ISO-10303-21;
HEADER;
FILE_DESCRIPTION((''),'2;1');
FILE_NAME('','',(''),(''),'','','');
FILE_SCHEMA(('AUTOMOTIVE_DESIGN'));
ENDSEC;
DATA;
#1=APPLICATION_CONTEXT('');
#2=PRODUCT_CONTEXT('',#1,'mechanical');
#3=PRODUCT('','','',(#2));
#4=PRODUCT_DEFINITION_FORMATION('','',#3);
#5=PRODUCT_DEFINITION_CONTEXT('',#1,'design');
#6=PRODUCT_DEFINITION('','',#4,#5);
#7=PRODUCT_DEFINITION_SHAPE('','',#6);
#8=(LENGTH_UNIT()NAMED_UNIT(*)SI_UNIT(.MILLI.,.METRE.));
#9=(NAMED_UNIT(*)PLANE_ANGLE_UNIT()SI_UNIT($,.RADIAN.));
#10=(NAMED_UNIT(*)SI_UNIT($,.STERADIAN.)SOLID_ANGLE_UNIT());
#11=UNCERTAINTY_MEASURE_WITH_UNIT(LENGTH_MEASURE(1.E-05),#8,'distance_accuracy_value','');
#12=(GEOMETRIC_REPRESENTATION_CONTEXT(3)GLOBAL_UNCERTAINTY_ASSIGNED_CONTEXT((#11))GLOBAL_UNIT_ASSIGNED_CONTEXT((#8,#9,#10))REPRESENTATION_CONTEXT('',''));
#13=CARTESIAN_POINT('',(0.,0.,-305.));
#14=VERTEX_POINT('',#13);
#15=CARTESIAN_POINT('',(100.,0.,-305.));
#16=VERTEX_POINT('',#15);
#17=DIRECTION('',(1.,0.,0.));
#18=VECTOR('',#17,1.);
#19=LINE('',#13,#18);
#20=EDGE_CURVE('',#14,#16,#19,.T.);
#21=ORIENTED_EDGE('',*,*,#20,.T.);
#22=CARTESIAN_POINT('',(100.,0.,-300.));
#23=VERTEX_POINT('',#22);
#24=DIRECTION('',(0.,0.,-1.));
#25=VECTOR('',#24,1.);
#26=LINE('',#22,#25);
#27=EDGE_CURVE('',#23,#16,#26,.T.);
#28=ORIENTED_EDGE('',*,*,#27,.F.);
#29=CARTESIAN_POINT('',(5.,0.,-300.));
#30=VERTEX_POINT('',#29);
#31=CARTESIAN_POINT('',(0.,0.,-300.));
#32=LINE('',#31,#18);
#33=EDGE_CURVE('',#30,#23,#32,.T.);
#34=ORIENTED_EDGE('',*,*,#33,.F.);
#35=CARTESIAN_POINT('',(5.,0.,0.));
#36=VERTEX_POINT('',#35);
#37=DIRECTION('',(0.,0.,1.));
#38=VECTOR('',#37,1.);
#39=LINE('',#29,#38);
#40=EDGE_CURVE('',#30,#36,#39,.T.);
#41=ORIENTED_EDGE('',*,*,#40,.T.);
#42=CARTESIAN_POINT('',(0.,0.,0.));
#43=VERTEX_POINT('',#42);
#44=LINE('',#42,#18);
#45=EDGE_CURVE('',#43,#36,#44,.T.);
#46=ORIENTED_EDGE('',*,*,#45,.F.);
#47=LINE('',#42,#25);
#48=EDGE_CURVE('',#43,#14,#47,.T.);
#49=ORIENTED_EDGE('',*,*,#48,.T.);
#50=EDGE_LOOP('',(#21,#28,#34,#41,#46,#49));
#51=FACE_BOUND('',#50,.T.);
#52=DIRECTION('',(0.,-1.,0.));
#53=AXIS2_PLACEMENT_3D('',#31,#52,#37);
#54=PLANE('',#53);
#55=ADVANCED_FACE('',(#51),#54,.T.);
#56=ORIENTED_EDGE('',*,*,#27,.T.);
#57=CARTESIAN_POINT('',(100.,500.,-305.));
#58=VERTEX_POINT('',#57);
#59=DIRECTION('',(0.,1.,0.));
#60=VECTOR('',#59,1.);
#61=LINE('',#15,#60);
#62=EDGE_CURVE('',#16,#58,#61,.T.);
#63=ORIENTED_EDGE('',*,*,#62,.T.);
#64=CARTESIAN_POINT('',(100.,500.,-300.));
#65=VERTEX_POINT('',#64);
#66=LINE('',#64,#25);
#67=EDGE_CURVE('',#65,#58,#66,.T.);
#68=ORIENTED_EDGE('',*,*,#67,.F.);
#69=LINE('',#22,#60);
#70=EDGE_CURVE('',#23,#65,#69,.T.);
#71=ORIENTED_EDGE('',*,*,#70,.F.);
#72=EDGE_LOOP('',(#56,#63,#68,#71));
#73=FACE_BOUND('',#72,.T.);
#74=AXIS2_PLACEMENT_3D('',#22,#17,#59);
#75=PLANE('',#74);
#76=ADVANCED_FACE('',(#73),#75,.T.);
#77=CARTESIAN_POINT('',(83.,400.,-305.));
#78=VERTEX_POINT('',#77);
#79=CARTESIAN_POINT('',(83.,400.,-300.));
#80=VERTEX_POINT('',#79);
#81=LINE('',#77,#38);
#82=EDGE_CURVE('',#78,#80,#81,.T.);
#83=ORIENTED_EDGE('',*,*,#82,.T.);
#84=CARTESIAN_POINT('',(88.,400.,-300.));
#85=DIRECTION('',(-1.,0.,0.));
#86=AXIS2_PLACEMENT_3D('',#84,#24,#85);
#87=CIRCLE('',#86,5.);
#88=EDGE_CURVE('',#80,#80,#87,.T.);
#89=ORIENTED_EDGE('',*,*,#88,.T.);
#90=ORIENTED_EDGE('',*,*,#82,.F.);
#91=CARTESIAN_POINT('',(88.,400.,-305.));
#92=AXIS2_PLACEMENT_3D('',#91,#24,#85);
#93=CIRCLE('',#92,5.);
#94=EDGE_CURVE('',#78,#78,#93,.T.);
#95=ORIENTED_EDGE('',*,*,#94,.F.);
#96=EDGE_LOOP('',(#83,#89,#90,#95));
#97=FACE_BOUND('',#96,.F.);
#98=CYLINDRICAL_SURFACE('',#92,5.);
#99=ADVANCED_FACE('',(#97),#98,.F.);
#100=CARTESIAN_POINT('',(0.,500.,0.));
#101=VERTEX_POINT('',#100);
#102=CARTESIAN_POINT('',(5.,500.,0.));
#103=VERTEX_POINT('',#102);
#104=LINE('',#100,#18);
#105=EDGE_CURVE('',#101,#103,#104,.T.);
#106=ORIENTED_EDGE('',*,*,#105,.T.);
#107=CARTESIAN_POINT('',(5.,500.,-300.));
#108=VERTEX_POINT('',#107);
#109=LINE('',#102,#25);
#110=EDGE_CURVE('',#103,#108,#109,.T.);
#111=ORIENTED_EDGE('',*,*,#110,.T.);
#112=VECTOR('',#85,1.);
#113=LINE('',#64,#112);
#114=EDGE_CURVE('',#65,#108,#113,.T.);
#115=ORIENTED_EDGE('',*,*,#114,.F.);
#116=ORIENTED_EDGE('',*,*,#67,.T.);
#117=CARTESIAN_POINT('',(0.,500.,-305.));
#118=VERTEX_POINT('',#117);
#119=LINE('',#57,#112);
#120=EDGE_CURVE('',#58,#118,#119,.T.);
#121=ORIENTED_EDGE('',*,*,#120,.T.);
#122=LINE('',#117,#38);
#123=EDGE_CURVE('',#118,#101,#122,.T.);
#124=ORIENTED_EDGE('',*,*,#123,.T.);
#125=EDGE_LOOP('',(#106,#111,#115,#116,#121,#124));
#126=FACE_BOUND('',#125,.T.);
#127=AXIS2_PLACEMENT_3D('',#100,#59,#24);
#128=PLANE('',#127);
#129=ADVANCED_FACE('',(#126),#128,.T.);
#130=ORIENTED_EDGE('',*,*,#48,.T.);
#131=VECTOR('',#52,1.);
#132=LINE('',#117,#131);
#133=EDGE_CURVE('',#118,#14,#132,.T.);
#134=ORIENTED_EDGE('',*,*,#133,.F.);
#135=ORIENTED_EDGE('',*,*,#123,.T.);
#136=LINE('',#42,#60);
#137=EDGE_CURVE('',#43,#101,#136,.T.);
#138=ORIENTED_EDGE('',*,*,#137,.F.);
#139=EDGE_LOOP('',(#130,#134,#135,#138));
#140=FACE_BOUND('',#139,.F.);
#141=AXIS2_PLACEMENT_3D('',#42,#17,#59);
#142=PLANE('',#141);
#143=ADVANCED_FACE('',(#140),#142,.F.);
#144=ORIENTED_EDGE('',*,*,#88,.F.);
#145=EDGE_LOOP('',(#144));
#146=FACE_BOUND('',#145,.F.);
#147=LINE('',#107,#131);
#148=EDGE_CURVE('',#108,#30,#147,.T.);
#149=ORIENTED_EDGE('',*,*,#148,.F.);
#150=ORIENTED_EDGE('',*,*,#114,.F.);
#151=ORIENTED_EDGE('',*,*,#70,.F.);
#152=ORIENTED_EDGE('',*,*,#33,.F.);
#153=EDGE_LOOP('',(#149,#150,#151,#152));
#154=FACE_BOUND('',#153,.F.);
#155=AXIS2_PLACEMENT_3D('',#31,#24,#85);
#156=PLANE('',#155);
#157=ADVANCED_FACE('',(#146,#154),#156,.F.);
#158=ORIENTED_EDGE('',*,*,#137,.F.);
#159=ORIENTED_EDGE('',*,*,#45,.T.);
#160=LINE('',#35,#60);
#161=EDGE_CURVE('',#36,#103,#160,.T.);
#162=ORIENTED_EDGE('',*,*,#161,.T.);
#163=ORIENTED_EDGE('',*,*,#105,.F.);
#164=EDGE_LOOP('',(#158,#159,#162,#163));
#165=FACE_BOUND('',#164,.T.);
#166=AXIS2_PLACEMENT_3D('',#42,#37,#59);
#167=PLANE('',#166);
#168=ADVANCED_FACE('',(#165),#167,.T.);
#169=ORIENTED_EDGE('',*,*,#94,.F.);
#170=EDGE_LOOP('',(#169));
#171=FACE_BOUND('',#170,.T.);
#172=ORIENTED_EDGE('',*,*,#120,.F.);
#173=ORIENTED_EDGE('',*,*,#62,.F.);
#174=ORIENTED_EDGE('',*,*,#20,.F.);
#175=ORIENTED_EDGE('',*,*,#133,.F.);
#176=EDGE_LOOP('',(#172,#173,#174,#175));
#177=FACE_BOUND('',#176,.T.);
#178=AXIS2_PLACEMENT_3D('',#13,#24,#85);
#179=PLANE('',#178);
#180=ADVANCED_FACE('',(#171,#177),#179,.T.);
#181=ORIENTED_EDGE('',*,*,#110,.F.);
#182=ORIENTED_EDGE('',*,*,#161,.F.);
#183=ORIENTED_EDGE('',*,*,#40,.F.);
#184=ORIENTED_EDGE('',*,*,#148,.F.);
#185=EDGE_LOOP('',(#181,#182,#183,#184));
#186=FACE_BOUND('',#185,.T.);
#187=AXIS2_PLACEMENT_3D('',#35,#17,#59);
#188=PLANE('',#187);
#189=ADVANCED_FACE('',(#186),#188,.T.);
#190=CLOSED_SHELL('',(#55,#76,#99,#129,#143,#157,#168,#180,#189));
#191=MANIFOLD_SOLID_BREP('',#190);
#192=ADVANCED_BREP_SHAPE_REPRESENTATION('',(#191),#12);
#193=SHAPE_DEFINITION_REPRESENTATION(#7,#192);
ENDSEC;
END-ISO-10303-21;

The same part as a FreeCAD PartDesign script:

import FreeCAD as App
import Part
import Sketcher

V = App.Vector
Q = App.Units.Quantity

doc = App.newDocument("Part")
params = doc.addObject("Spreadsheet::Sheet", "Params")
for row, (alias, value) in enumerate([
    ("sketch1_width", "500 mm"),
    ("sketch1_height", "300 mm"),
    ("pad1_length", "5 mm"),
    ("sketch2_width", "100 mm"),
    ("sketch2_height", "500 mm"),
    ("pad2_length", "5 mm"),
    ("sketch3_diameter", "10 mm"),
    ("pocket1_length", "5 mm"),
], start=1):
    params.set(f"A{row}", alias)
    params.set(f"B{row}", "=" + value)
    params.setAlias(f"B{row}", alias)

body = doc.addObject("PartDesign::Body", "Body")

sketch1 = body.newObject("Sketcher::SketchObject", "Sketch")
sketch1.AttachmentSupport = (doc.getObject("YZ_Plane"), [""])
sketch1.MapMode = "FlatFace"
sketch1.addGeometry([
    Part.LineSegment(V(500, 0, 0), V(0, 0, 0)),
    Part.LineSegment(V(0, 0, 0), V(0, -300, 0)),
    Part.LineSegment(V(0, -300, 0), V(500, -300, 0)),
    Part.LineSegment(V(500, -300, 0), V(500, 0, 0)),
], False)
sketch1.addConstraint([
    Sketcher.Constraint("Coincident", 0, 2, 1, 1),
    Sketcher.Constraint("Coincident", 1, 2, 2, 1),
    Sketcher.Constraint("Coincident", 2, 2, 3, 1),
    Sketcher.Constraint("Coincident", 3, 2, 0, 1),
    Sketcher.Constraint("Horizontal", 0),
    Sketcher.Constraint("Vertical", 1),
    Sketcher.Constraint("Horizontal", 2),
    Sketcher.Constraint("Vertical", 3),
    Sketcher.Constraint("Coincident", 0, 2, -1, 1),
    Sketcher.Constraint("DistanceX", 0, 2, 0, 1, Q("500 mm")),
    Sketcher.Constraint("DistanceY", 1, 2, 1, 1, Q("300 mm")),
])
sketch1.setExpression("Constraints[9]", "Params.sketch1_width")
sketch1.setExpression("Constraints[10]", "Params.sketch1_height")
pad1 = body.newObject("PartDesign::Pad", "Pad")
pad1.Profile = sketch1
pad1.setExpression("Length", "Params.pad1_length")

sketch2 = body.newObject("Sketcher::SketchObject", "Sketch001")
sketch2.AttachmentSupport = (doc.getObject("XY_Plane"), [""])
sketch2.MapMode = "FlatFace"
sketch2.AttachmentOffset = App.Placement(V(0, 0, -300), App.Rotation())
sketch2.addGeometry([
    Part.LineSegment(V(100, 0, 0), V(0, 0, 0)),
    Part.LineSegment(V(0, 0, 0), V(0, 500, 0)),
    Part.LineSegment(V(0, 500, 0), V(100, 500, 0)),
    Part.LineSegment(V(100, 500, 0), V(100, 0, 0)),
], False)
sketch2.addConstraint([
    Sketcher.Constraint("Coincident", 0, 2, 1, 1),
    Sketcher.Constraint("Coincident", 1, 2, 2, 1),
    Sketcher.Constraint("Coincident", 2, 2, 3, 1),
    Sketcher.Constraint("Coincident", 3, 2, 0, 1),
    Sketcher.Constraint("Horizontal", 0),
    Sketcher.Constraint("Vertical", 1),
    Sketcher.Constraint("Horizontal", 2),
    Sketcher.Constraint("Vertical", 3),
    Sketcher.Constraint("Coincident", 0, 2, -1, 1),
    Sketcher.Constraint("DistanceX", 0, 2, 0, 1, Q("100 mm")),
    Sketcher.Constraint("DistanceY", 1, 1, 1, 2, Q("500 mm")),
])
sketch2.setExpression("Constraints[9]", "Params.sketch2_width")
sketch2.setExpression("Constraints[10]", "Params.sketch2_height")
pad2 = body.newObject("PartDesign::Pad", "Pad001")
pad2.Profile = sketch2
pad2.setExpression("Length", "Params.pad2_length")
pad2.Reversed = True

sketch3 = body.newObject("Sketcher::SketchObject", "Sketch002")
sketch3.AttachmentSupport = (doc.getObject("XY_Plane"), [""])
sketch3.MapMode = "FlatFace"
sketch3.AttachmentOffset = App.Placement(V(0, 0, -305), App.Rotation())
sketch3.addGeometry(Part.Circle(V(88, 400, 0), V(0, 0, 1), 5), False)
sketch3.addConstraint([
    Sketcher.Constraint("Diameter", 0, Q("10 mm")),
    Sketcher.Constraint("DistanceX", -1, 1, 0, 3, Q("88 mm")),
    Sketcher.Constraint("DistanceY", -1, 1, 0, 3, Q("400 mm")),
])
sketch3.setExpression("Constraints[0]", "Params.sketch3_diameter")
pocket1 = body.newObject("PartDesign::Pocket", "Pocket")
pocket1.Profile = sketch3
pocket1.setExpression("Length", "Params.pocket1_length")
pocket1.Reversed = True

doc.recompute()
